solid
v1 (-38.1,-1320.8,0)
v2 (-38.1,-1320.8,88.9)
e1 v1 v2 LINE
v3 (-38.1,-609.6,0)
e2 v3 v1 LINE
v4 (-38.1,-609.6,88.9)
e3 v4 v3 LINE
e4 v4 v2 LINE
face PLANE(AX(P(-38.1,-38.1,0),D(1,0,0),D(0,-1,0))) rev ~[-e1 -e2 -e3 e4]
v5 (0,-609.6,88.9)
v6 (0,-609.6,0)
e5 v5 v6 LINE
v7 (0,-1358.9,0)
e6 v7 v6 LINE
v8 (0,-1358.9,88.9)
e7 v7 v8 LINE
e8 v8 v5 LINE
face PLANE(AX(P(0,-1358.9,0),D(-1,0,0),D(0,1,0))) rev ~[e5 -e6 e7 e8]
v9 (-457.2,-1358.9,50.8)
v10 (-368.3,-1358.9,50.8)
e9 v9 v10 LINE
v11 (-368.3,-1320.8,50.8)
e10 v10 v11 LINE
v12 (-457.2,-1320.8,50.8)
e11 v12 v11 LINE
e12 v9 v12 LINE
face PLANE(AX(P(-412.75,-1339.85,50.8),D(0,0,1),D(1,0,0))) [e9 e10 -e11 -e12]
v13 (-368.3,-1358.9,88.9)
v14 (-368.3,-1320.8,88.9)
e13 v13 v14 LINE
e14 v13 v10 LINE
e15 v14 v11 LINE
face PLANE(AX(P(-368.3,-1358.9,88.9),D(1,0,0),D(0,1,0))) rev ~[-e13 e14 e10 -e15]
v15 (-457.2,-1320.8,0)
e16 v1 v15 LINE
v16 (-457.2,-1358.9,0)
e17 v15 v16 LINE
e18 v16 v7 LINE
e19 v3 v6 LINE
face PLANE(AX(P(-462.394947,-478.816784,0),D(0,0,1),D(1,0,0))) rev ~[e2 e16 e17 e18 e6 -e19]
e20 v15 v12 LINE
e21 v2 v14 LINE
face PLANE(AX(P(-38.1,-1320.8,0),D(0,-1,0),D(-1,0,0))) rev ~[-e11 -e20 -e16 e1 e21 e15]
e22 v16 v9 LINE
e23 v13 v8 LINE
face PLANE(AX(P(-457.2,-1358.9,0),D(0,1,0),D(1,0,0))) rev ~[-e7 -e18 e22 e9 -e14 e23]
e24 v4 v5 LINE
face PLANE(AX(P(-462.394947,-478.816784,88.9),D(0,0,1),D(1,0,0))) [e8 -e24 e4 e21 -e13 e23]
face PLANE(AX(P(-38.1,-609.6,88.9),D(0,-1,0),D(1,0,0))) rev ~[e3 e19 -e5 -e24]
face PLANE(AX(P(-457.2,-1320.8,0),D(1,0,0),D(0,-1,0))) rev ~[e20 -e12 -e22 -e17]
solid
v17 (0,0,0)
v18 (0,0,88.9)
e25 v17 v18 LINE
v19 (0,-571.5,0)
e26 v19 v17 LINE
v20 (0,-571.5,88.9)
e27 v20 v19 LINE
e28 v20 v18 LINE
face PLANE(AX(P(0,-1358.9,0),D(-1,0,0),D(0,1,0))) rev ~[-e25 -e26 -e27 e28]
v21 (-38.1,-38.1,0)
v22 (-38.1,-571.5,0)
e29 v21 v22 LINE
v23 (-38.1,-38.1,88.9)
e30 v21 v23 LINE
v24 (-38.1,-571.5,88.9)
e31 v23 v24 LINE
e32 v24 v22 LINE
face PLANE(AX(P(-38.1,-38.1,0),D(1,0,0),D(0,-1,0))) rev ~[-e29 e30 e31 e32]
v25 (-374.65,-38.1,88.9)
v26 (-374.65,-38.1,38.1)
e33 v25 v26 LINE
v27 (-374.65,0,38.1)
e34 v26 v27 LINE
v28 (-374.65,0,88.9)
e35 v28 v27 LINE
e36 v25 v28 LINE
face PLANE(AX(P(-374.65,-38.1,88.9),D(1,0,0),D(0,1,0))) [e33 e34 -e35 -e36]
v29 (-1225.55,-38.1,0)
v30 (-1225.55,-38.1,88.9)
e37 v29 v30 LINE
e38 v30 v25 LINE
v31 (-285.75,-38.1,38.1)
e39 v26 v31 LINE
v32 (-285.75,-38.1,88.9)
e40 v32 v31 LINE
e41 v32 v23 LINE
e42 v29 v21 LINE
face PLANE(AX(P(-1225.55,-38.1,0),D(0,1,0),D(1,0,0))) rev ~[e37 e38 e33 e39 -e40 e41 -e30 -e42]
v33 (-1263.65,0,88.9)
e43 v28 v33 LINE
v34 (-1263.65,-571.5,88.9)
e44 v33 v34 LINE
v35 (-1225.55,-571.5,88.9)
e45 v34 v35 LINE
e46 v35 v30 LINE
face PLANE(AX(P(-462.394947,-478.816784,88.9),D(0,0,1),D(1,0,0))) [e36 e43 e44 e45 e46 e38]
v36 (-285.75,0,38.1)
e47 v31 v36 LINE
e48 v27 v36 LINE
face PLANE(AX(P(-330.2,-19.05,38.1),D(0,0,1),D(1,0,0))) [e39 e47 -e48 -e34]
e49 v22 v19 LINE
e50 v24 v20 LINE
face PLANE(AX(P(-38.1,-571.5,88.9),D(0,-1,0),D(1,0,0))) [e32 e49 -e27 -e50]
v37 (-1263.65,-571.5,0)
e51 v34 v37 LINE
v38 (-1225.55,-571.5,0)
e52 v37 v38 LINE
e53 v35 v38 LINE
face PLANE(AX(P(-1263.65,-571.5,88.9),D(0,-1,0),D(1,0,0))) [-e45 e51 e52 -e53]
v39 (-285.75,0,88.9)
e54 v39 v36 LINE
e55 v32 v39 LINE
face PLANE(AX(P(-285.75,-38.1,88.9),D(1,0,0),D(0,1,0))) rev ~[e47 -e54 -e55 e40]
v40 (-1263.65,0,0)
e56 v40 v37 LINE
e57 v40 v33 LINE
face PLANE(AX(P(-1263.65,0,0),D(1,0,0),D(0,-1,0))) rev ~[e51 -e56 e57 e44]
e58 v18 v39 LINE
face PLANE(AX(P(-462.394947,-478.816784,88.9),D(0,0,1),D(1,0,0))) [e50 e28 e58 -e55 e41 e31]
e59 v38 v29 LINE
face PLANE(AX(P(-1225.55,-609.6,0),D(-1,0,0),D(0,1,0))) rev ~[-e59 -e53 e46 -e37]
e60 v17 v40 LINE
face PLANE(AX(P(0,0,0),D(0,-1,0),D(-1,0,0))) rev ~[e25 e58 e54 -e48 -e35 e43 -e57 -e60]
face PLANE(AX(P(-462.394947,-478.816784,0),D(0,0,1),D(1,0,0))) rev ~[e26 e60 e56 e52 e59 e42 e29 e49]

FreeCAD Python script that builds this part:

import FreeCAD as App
import Part
import Sketcher

V = App.Vector
Q = App.Units.Quantity


def add_polygon(sketch, points):
    """Adds a closed chain of lines whose ends are joined by coincident constraints."""
    first, n = sketch.GeometryCount, len(points)
    for a, b in zip(points, points[1:] + points[:1]):
        sketch.addGeometry(Part.LineSegment(App.Vector(*a, 0), App.Vector(*b, 0)), False)
    for i in range(n):
        sketch.addConstraint(Sketcher.Constraint("Coincident", first + i, 2, first + (i + 1) % n, 1))

doc = App.newDocument("Part")
body = doc.addObject("PartDesign::Body", "Body")
body.AllowCompound = True

sketch1 = body.newObject("Sketcher::SketchObject", "Sketch")
sketch1.AttachmentSupport = (doc.getObject("XY_Plane"), [""])
sketch1.MapMode = "FlatFace"
add_polygon(sketch1, [(0, -1359), (0, 0), (-1264, 0), (-1264, -610), (-1226, -610), (-1226, -38), (-38, -38), (-38, -1321), (-457, -1321), (-457, -1359)])
sketch1.addConstraint([
    Sketcher.Constraint("Vertical", 0),
    Sketcher.Constraint("Horizontal", 1),
    Sketcher.Constraint("Vertical", 2),
    Sketcher.Constraint("Horizontal", 3),
    Sketcher.Constraint("Vertical", 4),
    Sketcher.Constraint("Horizontal", 5),
    Sketcher.Constraint("Vertical", 6),
    Sketcher.Constraint("Horizontal", 7),
    Sketcher.Constraint("Vertical", 8),
    Sketcher.Constraint("Horizontal", 9),
    Sketcher.Constraint("Coincident", 0, 2, -1, 1),
    Sketcher.Constraint("Equal", 3, 8),
    Sketcher.Constraint("DistanceX", 9, 1, 9, 2, Q("18 in")),
    Sketcher.Constraint("DistanceY", 2, 2, 2, 1, Q("24 in")),
    Sketcher.Constraint("DistanceX", 3, 1, 3, 2, Q("1.5 in")),
    Sketcher.Constraint("DistanceX", 7, 2, 7, 1, Q("16.5 in")),
    Sketcher.Constraint("DistanceY", 0, 1, 0, 2, Q("53.5 in")),
    Sketcher.Constraint("DistanceY", 4, 1, 4, 2, Q("22.5 in")),
    Sketcher.Constraint("DistanceX", 1, 2, 1, 1, Q("49.75 in")),
])
pad1 = body.newObject("PartDesign::Pad", "Pad")
pad1.Profile = sketch1
pad1.Length = Q("3.5 in")

sketch2 = body.newObject("Sketcher::SketchObject", "Sketch001")
sketch2.AttachmentSupport = (doc.getObject("XY_Plane"), [""])
sketch2.MapMode = "FlatFace"
sketch2.AttachmentOffset = App.Placement(V(0, 0, 3.5 * 25.4), App.Rotation())
add_polygon(sketch2, [(-38, -572), (-38, -610), (0, -610), (0, -572)])
add_polygon(sketch2, [(-1264, -572), (-1264, -610), (-1226, -610), (-1226, -572)])
sketch2.addConstraint([
    Sketcher.Constraint("Vertical", 0),
    Sketcher.Constraint("Horizontal", 1),
    Sketcher.Constraint("Vertical", 2),
    Sketcher.Constraint("Horizontal", 3),
    Sketcher.Constraint("Vertical", 4),
    Sketcher.Constraint("Horizontal", 5),
    Sketcher.Constraint("Vertical", 6),
    Sketcher.Constraint("Horizontal", 7),
    Sketcher.Constraint("PointOnObject", 1, 2, -2),
    Sketcher.Constraint("Horizontal", 1, 2, 4, 2),
    Sketcher.Constraint("Horizontal", 3, 2, 6, 2),
    Sketcher.Constraint("Equal", 3, 5),
    Sketcher.Constraint("Equal", 7, 0),
    Sketcher.Constraint("DistanceX", 1, 1, 1, 2, Q("1.5 in")),
    Sketcher.Constraint("DistanceY", 0, 2, -1, 1, Q("24 in")),
    Sketcher.Constraint("DistanceX", 4, 2, -1, 1, Q("49.75 in")),
])
pocket1 = body.newObject("PartDesign::Pocket", "Pocket")
pocket1.Profile = sketch2
pocket1.Length = Q("3.5 in")

sketch3 = body.newObject("Sketcher::SketchObject", "Sketch002")
sketch3.AttachmentSupport = (doc.getObject("XY_Plane"), [""])
sketch3.MapMode = "FlatFace"
sketch3.AttachmentOffset = App.Placement(V(0, 0, 3.5 * 25.4), App.Rotation())
add_polygon(sketch3, [(-457, -1321), (-457, -1359), (-368, -1359), (-368, -1321)])
sketch3.addConstraint([
    Sketcher.Constraint("Vertical", 0),
    Sketcher.Constraint("Horizontal", 1),
    Sketcher.Constraint("Vertical", 2),
    Sketcher.Constraint("Horizontal", 3),
    Sketcher.Constraint("DistanceX", 1, 1, 1, 2, Q("3.5 in")),
    Sketcher.Constraint("DistanceY", 0, 2, 0, 1, Q("1.5 in")),
    Sketcher.Constraint("DistanceX", 0, 2, -1, 1, Q("18 in")),
    Sketcher.Constraint("DistanceY", 2, 2, -1, 1, Q("52 in")),
])
pocket2 = body.newObject("PartDesign::Pocket", "Pocket001")
pocket2.Profile = sketch3
pocket2.Length = Q("1.5 in")

sketch4 = body.newObject("Sketcher::SketchObject", "Sketch003")
sketch4.AttachmentSupport = (doc.getObject("XY_Plane"), [""])
sketch4.MapMode = "FlatFace"
sketch4.AttachmentOffset = App.Placement(V(0, 0, 3.5 * 25.4), App.Rotation())
add_polygon(sketch4, [(-375, 0), (-375, -38), (-286, -38), (-286, 0)])
sketch4.addConstraint([
    Sketcher.Constraint("Vertical", 0),
    Sketcher.Constraint("Horizontal", 1),
    Sketcher.Constraint("Vertical", 2),
    Sketcher.Constraint("Horizontal", 3),
    Sketcher.Constraint("PointOnObject", 2, 2, -1),
    Sketcher.Constraint("DistanceX", 1, 1, 1, 2, Q("3.5 in")),
    Sketcher.Constraint("DistanceY", 0, 2, 0, 1, Q("1.5 in")),
    Sketcher.Constraint("DistanceX", 0, 2, -1, 1, Q("14.75 in")),
])
pocket3 = body.newObject("PartDesign::Pocket", "Pocket002")
pocket3.Profile = sketch4
pocket3.Length = Q("2 in")

doc.recompute()
